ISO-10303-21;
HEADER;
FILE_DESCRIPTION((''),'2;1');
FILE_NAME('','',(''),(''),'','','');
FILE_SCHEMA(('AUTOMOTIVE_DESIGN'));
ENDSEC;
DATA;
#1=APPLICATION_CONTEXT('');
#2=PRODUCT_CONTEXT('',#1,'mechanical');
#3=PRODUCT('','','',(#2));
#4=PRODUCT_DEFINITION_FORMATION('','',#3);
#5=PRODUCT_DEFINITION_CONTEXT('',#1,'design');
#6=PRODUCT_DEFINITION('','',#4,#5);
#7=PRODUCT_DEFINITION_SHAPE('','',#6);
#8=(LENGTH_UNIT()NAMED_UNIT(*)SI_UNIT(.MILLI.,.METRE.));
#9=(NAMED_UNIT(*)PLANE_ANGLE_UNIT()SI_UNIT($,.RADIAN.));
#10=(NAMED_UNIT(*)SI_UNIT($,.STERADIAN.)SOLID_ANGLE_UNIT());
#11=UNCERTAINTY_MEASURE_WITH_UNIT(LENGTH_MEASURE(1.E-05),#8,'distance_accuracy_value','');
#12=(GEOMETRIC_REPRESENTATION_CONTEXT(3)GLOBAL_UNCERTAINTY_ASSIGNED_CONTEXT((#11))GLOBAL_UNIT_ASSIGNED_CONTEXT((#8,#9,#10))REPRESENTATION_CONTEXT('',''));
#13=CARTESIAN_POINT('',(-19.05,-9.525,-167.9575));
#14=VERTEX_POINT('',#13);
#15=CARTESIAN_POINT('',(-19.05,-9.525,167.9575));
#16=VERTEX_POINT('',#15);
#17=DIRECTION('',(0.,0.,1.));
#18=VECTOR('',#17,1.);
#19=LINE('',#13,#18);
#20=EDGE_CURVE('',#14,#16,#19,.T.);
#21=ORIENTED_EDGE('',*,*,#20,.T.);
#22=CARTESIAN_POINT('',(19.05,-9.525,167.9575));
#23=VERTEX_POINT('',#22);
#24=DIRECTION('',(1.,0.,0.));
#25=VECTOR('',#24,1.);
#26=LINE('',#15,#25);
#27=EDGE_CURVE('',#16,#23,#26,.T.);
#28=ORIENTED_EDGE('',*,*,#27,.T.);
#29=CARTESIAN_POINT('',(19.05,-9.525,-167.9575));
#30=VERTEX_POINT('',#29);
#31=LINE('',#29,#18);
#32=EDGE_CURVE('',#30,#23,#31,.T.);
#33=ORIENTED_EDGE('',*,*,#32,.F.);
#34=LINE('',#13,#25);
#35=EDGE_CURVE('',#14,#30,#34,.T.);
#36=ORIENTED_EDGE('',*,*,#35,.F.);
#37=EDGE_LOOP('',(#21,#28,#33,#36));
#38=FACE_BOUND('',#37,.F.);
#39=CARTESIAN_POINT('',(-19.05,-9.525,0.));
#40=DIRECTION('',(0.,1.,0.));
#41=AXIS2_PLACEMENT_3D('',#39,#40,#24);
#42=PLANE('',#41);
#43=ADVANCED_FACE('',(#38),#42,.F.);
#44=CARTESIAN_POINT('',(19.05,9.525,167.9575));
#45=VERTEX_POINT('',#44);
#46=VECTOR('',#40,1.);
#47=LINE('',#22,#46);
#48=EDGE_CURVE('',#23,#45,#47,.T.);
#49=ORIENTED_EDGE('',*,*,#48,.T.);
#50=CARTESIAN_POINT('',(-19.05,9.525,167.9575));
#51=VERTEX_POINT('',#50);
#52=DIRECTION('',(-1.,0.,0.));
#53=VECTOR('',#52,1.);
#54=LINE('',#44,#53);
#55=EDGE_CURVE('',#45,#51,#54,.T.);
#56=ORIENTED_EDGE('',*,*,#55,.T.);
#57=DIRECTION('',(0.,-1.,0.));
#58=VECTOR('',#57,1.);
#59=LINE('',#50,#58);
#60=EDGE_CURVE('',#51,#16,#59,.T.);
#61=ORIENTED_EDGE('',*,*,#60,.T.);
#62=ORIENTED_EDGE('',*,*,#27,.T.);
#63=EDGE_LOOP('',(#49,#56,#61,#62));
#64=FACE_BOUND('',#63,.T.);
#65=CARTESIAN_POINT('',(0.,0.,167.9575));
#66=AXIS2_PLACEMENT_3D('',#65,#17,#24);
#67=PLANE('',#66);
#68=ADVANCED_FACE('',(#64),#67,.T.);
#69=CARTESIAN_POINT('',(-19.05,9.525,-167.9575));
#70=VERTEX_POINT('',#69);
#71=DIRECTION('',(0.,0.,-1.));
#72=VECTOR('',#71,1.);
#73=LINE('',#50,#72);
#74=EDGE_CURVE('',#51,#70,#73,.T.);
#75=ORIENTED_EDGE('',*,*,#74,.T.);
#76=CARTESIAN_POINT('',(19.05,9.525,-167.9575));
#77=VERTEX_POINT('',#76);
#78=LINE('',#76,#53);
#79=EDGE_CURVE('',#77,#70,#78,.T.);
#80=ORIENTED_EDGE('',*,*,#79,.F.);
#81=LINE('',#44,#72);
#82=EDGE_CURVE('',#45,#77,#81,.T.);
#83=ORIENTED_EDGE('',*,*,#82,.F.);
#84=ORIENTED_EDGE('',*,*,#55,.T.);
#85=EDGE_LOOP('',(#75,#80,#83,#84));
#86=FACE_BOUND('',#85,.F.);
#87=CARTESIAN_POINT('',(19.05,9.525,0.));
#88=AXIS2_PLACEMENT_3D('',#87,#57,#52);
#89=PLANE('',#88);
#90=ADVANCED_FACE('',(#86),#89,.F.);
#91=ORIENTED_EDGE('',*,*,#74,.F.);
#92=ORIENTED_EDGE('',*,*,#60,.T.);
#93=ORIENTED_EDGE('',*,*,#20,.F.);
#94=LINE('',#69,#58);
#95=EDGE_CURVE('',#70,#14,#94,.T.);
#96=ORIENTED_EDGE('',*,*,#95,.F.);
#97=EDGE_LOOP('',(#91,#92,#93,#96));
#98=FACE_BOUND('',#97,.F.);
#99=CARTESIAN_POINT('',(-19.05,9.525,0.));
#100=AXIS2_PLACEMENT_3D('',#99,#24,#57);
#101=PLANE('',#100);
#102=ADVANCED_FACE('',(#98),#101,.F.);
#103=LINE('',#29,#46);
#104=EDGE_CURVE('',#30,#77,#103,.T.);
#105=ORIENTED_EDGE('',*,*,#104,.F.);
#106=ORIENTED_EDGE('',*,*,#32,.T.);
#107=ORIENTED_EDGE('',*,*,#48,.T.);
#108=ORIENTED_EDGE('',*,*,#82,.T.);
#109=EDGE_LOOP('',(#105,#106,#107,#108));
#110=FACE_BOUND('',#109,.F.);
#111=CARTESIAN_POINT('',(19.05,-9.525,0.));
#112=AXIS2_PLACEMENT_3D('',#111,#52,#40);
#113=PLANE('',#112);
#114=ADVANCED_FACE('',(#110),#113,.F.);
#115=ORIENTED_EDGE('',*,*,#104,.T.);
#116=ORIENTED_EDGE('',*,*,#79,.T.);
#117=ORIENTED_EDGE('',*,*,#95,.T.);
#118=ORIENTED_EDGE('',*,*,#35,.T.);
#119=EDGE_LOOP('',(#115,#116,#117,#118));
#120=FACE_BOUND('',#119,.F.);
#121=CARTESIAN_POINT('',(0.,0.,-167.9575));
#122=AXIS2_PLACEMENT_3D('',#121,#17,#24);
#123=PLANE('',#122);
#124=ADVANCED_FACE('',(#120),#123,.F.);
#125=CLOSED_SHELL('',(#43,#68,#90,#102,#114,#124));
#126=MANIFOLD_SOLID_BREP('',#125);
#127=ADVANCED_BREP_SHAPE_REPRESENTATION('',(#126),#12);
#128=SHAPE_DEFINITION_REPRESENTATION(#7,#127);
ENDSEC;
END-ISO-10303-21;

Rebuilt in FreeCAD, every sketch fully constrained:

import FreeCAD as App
import Part
import Sketcher
Q = App.Units.Quantity

doc = App.newDocument("Part")
params = doc.addObject("Spreadsheet::Sheet", "Params")
for row, (alias, value) in enumerate([
    ("sketch1_width", "1.5 in"),
    ("sketch1_height", "0.75 in"),
    ("pad1_length", "13.225 in"),
], start=1):
    params.set(f"A{row}", alias)
    params.set(f"B{row}", "=" + value)
    params.setAlias(f"B{row}", alias)

body = doc.addObject("PartDesign::Body", "Body")

sketch1 = body.newObject("Sketcher::SketchObject", "Sketch")
sketch1.AttachmentSupport = (doc.getObject("XY_Plane"), [""])
sketch1.MapMode = "FlatFace"
sketch1.addGeometry([
    Part.LineSegment(App.Vector(-19, 10, 0), App.Vector(-19, -10, 0)),
    Part.LineSegment(App.Vector(-19, -10, 0), App.Vector(19, -10, 0)),
    Part.LineSegment(App.Vector(19, -10, 0), App.Vector(19, 10, 0)),
    Part.LineSegment(App.Vector(19, 10, 0), App.Vector(-19, 10, 0)),
], False)
sketch1.addConstraint([
    Sketcher.Constraint("Coincident", 0, 2, 1, 1),
    Sketcher.Constraint("Coincident", 1, 2, 2, 1),
    Sketcher.Constraint("Coincident", 2, 2, 3, 1),
    Sketcher.Constraint("Coincident", 3, 2, 0, 1),
    Sketcher.Constraint("Vertical", 0),
    Sketcher.Constraint("Horizontal", 1),
    Sketcher.Constraint("Vertical", 2),
    Sketcher.Constraint("Horizontal", 3),
    Sketcher.Constraint("Symmetric", 0, 2, 2, 2, -1, 1),
    Sketcher.Constraint("DistanceX", 1, 1, 1, 2, Q("1.5 in")),
    Sketcher.Constraint("DistanceY", 0, 2, 0, 1, Q("0.75 in")),
])
sketch1.setExpression("Constraints[9]", "Params.sketch1_width")
sketch1.setExpression("Constraints[10]", "Params.sketch1_height")
pad1 = body.newObject("PartDesign::Pad", "Pad")
pad1.Profile = sketch1
pad1.setExpression("Length", "Params.pad1_length")
pad1.Midplane = True

doc.recompute()
